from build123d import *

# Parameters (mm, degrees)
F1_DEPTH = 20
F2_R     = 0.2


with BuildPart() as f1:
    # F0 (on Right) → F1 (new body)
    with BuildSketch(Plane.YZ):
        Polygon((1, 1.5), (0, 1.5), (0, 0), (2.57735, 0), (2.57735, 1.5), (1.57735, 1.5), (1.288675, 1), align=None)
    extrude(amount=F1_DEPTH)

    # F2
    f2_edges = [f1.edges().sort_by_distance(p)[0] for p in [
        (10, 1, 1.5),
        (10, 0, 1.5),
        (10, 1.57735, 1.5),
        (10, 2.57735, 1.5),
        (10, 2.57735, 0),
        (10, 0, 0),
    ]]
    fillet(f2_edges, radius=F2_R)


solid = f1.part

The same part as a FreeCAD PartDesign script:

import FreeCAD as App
import Part
import Sketcher
from FreeCAD import Vector
Q = App.Units.Quantity


def edges_at(feature, points):
    """Names of the edges that pass closest to the given points."""
    edges = feature.Shape.Edges
    near = lambda p: min(range(len(edges)), key=lambda i: edges[i].distToShape(Part.Vertex(*p))[0])
    return sorted({f"Edge{near(p) + 1}" for p in points})


def add_polygon(sketch, points):
    """Adds a closed chain of lines whose ends are joined by coincident constraints."""
    first, n = sketch.GeometryCount, len(points)
    for a, b in zip(points, points[1:] + points[:1]):
        sketch.addGeometry(Part.LineSegment(App.Vector(*a, 0), App.Vector(*b, 0)), False)
    for i in range(n):
        sketch.addConstraint(Sketcher.Constraint("Coincident", first + i, 2, first + (i + 1) % n, 1))

doc = App.newDocument("Part")
params = doc.addObject("Spreadsheet::Sheet", "Params")
for row, (alias, value) in enumerate([
    ("sketch1_width", "1 mm"),
    ("sketch1_height", "1.5 mm"),
    ("pad1_length", "20 mm"),
    ("fillet_radius", "0.2 mm"),
], start=1):
    params.set(f"A{row}", alias)
    params.set(f"B{row}", "=" + value)
    params.setAlias(f"B{row}", alias)

body = doc.addObject("PartDesign::Body", "Body")

# Sketch on YZ plane
sketch1 = body.newObject("Sketcher::SketchObject", "Sketch")
sketch1.AttachmentSupport = (doc.getObject("YZ_Plane"), [""])
sketch1.MapMode = "FlatFace"
add_polygon(sketch1, [(1, 1.5), (0, 1.5), (0, 0), (2.6, 0), (2.6, 1.5), (1.6, 1.5), (1.3, 1)])  # lines 0-6
sketch1.addConstraint([
    Sketcher.Constraint("Horizontal", 0),
    Sketcher.Constraint("Vertical", 1),
    Sketcher.Constraint("Horizontal", 2),
    Sketcher.Constraint("Vertical", 3),
    Sketcher.Constraint("Horizontal", 4),
    Sketcher.Constraint("Coincident", 1, 2, -1, 1),
    Sketcher.Constraint("Horizontal", 0, 2, 3, 2),
    Sketcher.Constraint("Equal", 0, 4),
    Sketcher.Constraint("Equal", 5, 6),
    Sketcher.Constraint("DistanceX", 0, 2, 0, 1, 1.0),
    Sketcher.Constraint("Angle", 5, Q("-119.999988 deg")),
    Sketcher.Constraint("DistanceY", 1, 2, 1, 1, 1.5),
    Sketcher.Constraint("DistanceY", -1, 1, 5, 2, 1.0),
])
sketch1.setExpression("Constraints[16]", "Params.sketch1_width")
sketch1.setExpression("Constraints[18]", "Params.sketch1_height")
pad1 = body.newObject("PartDesign::Pad", "Pad")
pad1.Profile = sketch1
pad1.setExpression("Length", "Params.pad1_length")
doc.recompute()

fillet = body.newObject("PartDesign::Fillet", "Fillet")
fillet.Base = (pad1, edges_at(pad1, [
    (10, 1, 1.5),
    (10, 0, 1.5),
    (10, 1.577, 1.5),
    (10, 2.577, 1.5),
    (10, 2.577, 0),
    (10, 0, 0),
]))
fillet.setExpression("Radius", "Params.fillet_radius")

doc.recompute()
